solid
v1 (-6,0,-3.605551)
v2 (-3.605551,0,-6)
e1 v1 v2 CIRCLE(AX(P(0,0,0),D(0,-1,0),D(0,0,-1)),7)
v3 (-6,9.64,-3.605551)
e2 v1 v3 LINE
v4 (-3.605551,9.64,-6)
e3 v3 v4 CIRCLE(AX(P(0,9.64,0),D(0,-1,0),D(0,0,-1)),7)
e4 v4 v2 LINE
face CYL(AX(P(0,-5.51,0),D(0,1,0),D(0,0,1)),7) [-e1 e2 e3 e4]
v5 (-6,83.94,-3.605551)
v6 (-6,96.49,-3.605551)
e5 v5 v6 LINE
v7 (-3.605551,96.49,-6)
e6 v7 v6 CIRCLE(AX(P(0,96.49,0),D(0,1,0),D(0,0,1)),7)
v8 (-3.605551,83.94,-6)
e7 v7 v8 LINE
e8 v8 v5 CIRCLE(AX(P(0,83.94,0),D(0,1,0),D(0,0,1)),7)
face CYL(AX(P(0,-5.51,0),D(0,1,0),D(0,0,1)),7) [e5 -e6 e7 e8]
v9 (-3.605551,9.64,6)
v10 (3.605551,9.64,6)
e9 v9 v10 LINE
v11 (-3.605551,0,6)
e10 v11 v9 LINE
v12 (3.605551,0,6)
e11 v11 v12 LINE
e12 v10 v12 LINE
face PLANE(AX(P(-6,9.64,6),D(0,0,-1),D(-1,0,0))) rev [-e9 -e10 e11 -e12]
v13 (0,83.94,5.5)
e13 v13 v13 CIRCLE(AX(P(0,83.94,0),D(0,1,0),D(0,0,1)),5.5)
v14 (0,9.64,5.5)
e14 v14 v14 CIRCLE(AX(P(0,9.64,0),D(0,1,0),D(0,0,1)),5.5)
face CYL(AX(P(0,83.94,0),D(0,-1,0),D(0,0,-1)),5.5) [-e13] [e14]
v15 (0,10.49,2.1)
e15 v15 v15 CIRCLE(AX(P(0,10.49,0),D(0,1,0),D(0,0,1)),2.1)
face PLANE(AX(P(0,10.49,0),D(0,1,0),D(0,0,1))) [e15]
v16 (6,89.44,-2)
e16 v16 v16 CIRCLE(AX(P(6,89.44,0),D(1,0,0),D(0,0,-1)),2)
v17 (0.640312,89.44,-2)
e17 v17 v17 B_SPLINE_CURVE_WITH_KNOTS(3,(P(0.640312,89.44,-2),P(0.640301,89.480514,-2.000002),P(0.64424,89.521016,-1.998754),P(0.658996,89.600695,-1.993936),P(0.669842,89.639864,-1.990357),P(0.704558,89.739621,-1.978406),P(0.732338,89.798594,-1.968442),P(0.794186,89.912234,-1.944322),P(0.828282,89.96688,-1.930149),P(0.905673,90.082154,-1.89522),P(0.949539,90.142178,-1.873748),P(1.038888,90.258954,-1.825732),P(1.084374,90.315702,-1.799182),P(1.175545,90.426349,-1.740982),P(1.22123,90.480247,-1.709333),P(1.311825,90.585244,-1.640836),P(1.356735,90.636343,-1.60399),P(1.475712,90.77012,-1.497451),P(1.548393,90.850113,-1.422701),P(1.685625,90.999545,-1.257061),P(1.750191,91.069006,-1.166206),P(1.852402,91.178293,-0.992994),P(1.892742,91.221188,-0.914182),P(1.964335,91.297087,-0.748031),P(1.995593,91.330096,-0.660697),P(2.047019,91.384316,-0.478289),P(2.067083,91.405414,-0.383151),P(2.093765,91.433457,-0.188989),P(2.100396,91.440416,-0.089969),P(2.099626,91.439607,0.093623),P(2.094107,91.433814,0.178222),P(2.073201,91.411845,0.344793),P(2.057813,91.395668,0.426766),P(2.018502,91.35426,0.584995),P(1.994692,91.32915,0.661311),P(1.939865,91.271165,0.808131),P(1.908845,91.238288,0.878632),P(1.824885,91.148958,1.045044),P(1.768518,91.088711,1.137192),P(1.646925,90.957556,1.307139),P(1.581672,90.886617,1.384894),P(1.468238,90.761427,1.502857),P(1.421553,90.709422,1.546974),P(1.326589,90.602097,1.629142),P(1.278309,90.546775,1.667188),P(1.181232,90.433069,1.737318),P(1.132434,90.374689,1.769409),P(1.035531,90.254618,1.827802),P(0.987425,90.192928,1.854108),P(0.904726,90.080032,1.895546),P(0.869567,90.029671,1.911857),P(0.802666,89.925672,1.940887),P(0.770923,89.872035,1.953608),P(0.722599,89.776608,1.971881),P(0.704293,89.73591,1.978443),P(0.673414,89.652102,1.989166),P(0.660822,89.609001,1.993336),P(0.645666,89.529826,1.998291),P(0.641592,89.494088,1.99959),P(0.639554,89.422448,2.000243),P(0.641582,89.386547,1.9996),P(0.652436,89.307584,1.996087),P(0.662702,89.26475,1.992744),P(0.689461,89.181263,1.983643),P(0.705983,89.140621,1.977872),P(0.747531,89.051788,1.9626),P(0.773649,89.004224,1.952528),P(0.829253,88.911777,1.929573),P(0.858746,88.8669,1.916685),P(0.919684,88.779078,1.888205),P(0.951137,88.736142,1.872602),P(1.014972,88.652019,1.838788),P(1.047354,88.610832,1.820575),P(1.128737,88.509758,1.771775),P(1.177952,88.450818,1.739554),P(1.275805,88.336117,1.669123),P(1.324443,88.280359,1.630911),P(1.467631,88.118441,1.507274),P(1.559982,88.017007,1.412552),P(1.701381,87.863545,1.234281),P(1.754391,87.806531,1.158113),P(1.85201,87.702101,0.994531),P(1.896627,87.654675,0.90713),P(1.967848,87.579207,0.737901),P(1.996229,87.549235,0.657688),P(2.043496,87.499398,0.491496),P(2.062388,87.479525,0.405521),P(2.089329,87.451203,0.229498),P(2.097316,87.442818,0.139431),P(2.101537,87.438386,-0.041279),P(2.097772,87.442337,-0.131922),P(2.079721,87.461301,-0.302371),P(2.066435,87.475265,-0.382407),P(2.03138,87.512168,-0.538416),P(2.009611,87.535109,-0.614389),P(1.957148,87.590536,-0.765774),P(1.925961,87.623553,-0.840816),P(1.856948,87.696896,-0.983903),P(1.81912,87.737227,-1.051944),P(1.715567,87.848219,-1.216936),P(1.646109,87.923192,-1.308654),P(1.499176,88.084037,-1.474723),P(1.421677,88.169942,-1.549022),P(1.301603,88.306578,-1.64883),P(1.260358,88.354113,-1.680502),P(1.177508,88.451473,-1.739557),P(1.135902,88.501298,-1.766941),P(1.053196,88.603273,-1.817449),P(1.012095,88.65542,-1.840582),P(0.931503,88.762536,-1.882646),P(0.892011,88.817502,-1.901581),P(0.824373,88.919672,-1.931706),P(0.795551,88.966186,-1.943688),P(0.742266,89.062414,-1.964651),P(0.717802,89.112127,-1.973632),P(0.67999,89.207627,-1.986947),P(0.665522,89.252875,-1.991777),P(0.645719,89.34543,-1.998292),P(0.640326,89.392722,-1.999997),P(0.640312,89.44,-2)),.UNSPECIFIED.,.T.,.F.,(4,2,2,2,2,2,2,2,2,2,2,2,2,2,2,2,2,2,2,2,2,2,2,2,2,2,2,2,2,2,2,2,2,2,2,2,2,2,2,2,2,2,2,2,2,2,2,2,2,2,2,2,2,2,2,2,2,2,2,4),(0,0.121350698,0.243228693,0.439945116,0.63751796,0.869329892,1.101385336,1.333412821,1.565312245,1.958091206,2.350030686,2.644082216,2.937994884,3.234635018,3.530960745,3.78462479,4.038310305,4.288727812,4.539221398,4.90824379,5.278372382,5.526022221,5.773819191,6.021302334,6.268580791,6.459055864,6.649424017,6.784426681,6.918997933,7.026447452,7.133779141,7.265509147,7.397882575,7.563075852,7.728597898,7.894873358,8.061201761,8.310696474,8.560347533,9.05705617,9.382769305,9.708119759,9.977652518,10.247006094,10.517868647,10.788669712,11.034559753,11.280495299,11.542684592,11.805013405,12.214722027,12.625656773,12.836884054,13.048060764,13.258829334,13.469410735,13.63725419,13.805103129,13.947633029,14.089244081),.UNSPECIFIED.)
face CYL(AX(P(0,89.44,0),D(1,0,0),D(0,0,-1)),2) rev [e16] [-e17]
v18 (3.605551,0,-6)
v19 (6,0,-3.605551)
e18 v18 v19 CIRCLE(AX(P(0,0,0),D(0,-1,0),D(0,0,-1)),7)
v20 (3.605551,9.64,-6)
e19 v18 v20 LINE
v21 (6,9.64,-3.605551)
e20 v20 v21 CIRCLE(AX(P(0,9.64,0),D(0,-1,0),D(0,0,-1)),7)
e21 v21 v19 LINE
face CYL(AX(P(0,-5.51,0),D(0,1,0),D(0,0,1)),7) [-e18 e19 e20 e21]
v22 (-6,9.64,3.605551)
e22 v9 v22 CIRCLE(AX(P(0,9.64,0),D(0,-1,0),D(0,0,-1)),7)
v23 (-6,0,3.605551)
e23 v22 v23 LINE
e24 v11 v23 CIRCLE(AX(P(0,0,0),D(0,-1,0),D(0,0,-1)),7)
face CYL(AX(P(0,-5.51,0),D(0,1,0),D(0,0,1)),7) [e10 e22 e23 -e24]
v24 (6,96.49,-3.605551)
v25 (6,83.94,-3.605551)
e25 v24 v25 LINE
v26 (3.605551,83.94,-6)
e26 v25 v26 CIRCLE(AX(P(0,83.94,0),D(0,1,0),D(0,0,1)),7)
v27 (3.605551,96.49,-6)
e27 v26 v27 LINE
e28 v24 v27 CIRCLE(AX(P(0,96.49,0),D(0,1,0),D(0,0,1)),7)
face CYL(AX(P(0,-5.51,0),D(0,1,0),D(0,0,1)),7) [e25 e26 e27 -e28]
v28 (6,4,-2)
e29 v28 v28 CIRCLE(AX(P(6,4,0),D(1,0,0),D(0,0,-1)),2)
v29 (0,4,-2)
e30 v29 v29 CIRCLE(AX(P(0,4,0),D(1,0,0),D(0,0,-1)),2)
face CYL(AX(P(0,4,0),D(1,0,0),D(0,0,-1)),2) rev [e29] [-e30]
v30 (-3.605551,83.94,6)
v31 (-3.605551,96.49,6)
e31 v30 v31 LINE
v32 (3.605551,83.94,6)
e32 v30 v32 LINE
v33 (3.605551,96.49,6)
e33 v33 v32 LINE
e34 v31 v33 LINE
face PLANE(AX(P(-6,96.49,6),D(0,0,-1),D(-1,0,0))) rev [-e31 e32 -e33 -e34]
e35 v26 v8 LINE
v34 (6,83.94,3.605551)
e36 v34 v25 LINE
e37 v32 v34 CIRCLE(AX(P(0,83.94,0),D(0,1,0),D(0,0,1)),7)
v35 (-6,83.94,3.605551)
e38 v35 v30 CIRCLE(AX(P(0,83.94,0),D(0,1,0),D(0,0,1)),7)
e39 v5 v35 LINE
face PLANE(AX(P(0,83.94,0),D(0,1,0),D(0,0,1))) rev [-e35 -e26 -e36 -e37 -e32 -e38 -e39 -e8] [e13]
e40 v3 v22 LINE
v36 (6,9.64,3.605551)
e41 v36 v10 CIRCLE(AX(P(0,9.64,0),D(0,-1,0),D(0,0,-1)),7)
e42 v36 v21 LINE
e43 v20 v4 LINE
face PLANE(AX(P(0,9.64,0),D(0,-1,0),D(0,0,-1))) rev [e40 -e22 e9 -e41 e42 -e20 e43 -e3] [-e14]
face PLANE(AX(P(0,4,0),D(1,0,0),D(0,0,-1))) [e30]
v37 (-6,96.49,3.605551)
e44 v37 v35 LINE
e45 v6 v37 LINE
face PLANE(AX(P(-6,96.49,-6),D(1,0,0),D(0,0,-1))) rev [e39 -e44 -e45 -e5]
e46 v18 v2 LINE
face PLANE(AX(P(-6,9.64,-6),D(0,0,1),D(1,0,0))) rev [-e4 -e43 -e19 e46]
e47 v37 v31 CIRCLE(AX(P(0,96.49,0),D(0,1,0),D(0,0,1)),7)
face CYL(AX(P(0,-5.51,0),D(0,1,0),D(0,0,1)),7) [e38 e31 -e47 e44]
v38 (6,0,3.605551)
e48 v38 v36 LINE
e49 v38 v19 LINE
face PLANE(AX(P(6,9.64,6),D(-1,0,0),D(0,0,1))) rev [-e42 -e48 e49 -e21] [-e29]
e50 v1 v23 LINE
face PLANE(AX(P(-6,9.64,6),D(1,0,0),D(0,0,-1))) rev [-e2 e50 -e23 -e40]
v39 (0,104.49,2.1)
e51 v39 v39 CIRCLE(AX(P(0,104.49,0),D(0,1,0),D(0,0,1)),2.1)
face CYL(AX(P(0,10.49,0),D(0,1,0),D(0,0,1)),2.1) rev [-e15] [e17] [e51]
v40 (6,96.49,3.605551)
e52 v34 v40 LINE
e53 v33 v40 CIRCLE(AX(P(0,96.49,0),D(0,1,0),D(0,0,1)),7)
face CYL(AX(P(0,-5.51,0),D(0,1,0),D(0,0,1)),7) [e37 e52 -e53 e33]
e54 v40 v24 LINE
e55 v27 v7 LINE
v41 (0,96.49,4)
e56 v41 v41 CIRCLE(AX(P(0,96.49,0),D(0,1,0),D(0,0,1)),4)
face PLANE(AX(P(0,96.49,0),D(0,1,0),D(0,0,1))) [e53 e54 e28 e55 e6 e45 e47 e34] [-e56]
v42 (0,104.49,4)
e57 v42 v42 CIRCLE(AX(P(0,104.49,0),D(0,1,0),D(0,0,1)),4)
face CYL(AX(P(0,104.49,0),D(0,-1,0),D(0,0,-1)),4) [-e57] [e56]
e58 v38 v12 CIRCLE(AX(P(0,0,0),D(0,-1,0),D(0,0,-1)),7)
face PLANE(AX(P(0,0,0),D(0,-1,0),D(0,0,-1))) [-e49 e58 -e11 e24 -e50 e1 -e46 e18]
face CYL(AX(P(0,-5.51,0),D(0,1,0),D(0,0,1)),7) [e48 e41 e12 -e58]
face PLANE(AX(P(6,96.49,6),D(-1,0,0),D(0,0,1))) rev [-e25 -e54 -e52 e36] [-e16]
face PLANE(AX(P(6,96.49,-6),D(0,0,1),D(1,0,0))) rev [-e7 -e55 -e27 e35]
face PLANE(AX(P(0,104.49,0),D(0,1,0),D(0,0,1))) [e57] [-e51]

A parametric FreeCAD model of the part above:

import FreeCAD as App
import Part
import Sketcher

V = App.Vector

doc = App.newDocument("Part")
body = doc.addObject("PartDesign::Body", "Body")

# Sketch on XZ plane
sketch1 = doc.addObject("Sketcher::SketchObject", "Sketch")
body.addObject(sketch1)
sketch1.AttachmentSupport = (doc.XZ_Plane, [""])
sketch1.MapMode = "FlatFace"
sketch1.addGeometry([
    Part.LineSegment(V(-6, -6, 0), V(-6, 6, 0)),
    Part.LineSegment(V(-6, 6, 0), V(6, 6, 0)),
    Part.LineSegment(V(6, 6, 0), V(6, -6, 0)),
    Part.LineSegment(V(6, -6, 0), V(-6, -6, 0)),
], False)
sketch1.addConstraint([
    Sketcher.Constraint("Coincident", 0, 2, 1, 1),
    Sketcher.Constraint("Coincident", 1, 2, 2, 1),
    Sketcher.Constraint("Coincident", 2, 2, 3, 1),
    Sketcher.Constraint("Coincident", 3, 2, 0, 1),
    Sketcher.Constraint("Vertical", 0),
    Sketcher.Constraint("Horizontal", 1),
    Sketcher.Constraint("Vertical", 2),
    Sketcher.Constraint("Horizontal", 3),
    Sketcher.Constraint("Symmetric", 0, 2, 2, 2, -1, 1),
    Sketcher.Constraint("Equal", 3, 0),
    Sketcher.Constraint("DistanceX", 1, 1, 1, 2, 12.0),
])
pad1 = doc.addObject("PartDesign::Pad", "Pad")
body.addObject(pad1)
pad1.Profile = sketch1
pad1.Length = 9.64
pad1.Reversed = True

# Sketch on XZ plane
sketch2 = doc.addObject("Sketcher::SketchObject", "Sketch001")
body.addObject(sketch2)
sketch2.AttachmentSupport = (doc.XZ_Plane, [""])
sketch2.MapMode = "FlatFace"
sketch2.AttachmentOffset = App.Placement(V(0, 0, -9.64), App.Rotation())
sketch2.addGeometry(Part.Circle(V(0, 0, 0), V(0, 0, 1), 6), False)
sketch2.addConstraint([
    Sketcher.Constraint("Coincident", 0, 3, -1, 1),
    Sketcher.Constraint("Diameter", 0, 11.0),
])
pad2 = doc.addObject("PartDesign::Pad", "Pad001")
body.addObject(pad2)
pad2.Profile = sketch2
pad2.Length = 74.3
pad2.Reversed = True

# Sketch on XZ plane
sketch3 = doc.addObject("Sketcher::SketchObject", "Sketch002")
body.addObject(sketch3)
sketch3.AttachmentSupport = (doc.XZ_Plane, [""])
sketch3.MapMode = "FlatFace"
sketch3.AttachmentOffset = App.Placement(V(0, 0, -83.94), App.Rotation())
sketch3.addGeometry([
    Part.LineSegment(V(-6, -6, 0), V(-6, 6, 0)),
    Part.LineSegment(V(-6, 6, 0), V(6, 6, 0)),
    Part.LineSegment(V(6, 6, 0), V(6, -6, 0)),
    Part.LineSegment(V(6, -6, 0), V(-6, -6, 0)),
], False)
sketch3.addConstraint([
    Sketcher.Constraint("Coincident", 0, 2, 1, 1),
    Sketcher.Constraint("Coincident", 1, 2, 2, 1),
    Sketcher.Constraint("Coincident", 2, 2, 3, 1),
    Sketcher.Constraint("Coincident", 3, 2, 0, 1),
    Sketcher.Constraint("Vertical", 0),
    Sketcher.Constraint("Horizontal", 1),
    Sketcher.Constraint("Vertical", 2),
    Sketcher.Constraint("Horizontal", 3),
    Sketcher.Constraint("Symmetric", 0, 2, 2, 2, -1, 1),
    Sketcher.Constraint("Equal", 3, 0),
    Sketcher.Constraint("DistanceX", 1, 1, 1, 2, 12.0),
])
pad3 = doc.addObject("PartDesign::Pad", "Pad002")
body.addObject(pad3)
pad3.Profile = sketch3
pad3.Length = 12.55
pad3.Reversed = True

# Sketch on XZ plane
sketch4 = doc.addObject("Sketcher::SketchObject", "Sketch003")
body.addObject(sketch4)
sketch4.AttachmentSupport = (doc.XZ_Plane, [""])
sketch4.MapMode = "FlatFace"
sketch4.AttachmentOffset = App.Placement(V(0, 0, -96.49), App.Rotation())
sketch4.addGeometry(Part.Circle(V(0, 0, 0), V(0, 0, 1), 4), False)
sketch4.addConstraint([
    Sketcher.Constraint("Coincident", 0, 3, -1, 1),
    Sketcher.Constraint("Diameter", 0, 8.0),
])
pad4 = doc.addObject("PartDesign::Pad", "Pad003")
body.addObject(pad4)
pad4.Profile = sketch4
pad4.Length = 8
pad4.Reversed = True

# Sketch on XZ plane
sketch5 = doc.addObject("Sketcher::SketchObject", "Sketch004")
body.addObject(sketch5)
sketch5.AttachmentSupport = (doc.XZ_Plane, [""])
sketch5.MapMode = "FlatFace"
sketch5.AttachmentOffset = App.Placement(V(0, 0, -104.49), App.Rotation())
sketch5.addGeometry(Part.Circle(V(0, 0, 0), V(0, 0, 1), 2.1), False)
sketch5.addConstraint([
    Sketcher.Constraint("Coincident", 0, 3, -1, 1),
    Sketcher.Constraint("Diameter", 0, 4.2),
])
pocket1 = doc.addObject("PartDesign::Pocket", "Pocket")
body.addObject(pocket1)
pocket1.Profile = sketch5
pocket1.Length = 94
pocket1.Reversed = True

# Sketch on XZ plane
sketch6 = doc.addObject("Sketcher::SketchObject", "Sketch005")
body.addObject(sketch6)
sketch6.AttachmentSupport = (doc.XZ_Plane, [""])
sketch6.MapMode = "FlatFace"
sketch6.AttachmentOffset = App.Placement(V(0, 0, -96.49), App.Rotation())
sketch6.addGeometry([
    Part.Circle(V(0, 0, 0), V(0, 0, 1), 11),
    Part.Circle(V(0, 0, 0), V(0, 0, 1), 7),
], False)
sketch6.addConstraint([
    Sketcher.Constraint("Coincident", 0, 3, -1, 1),
    Sketcher.Constraint("Coincident", 1, 3, -1, 1),
    Sketcher.Constraint("Diameter", 1, 14.0),
    Sketcher.Constraint("Diameter", 0, 21.014554),
])
pocket2 = doc.addObject("PartDesign::Pocket", "Pocket001")
body.addObject(pocket2)
pocket2.Profile = sketch6
pocket2.Length = 102
pocket2.Reversed = True

# Sketch on YZ plane
sketch7 = doc.addObject("Sketcher::SketchObject", "Sketch006")
body.addObject(sketch7)
sketch7.AttachmentSupport = (doc.YZ_Plane, [""])
sketch7.MapMode = "FlatFace"
sketch7.AttachmentOffset = App.Placement(V(0, 0, 6), App.Rotation())
sketch7.addGeometry([
    Part.Circle(V(4, 0, 0), V(0, 0, 1), 2),
    Part.Circle(V(89.4, 0, 0), V(0, 0, 1), 2),
], False)
sketch7.addConstraint([
    Sketcher.Constraint("Equal", 0, 1),
    Sketcher.Constraint("PointOnObject", 0, 3, -1),
    Sketcher.Constraint("PointOnObject", 1, 3, -1),
    Sketcher.Constraint("Diameter", 0, 4.0),
    Sketcher.Constraint("DistanceX", -1, 1, 0, 3, 4.0),
    Sketcher.Constraint("DistanceX", -1, 1, 1, 3, 89.44),
])
pocket3 = doc.addObject("PartDesign::Pocket", "Pocket002")
body.addObject(pocket3)
pocket3.Profile = sketch7
pocket3.Length = 6

doc.recompute()
